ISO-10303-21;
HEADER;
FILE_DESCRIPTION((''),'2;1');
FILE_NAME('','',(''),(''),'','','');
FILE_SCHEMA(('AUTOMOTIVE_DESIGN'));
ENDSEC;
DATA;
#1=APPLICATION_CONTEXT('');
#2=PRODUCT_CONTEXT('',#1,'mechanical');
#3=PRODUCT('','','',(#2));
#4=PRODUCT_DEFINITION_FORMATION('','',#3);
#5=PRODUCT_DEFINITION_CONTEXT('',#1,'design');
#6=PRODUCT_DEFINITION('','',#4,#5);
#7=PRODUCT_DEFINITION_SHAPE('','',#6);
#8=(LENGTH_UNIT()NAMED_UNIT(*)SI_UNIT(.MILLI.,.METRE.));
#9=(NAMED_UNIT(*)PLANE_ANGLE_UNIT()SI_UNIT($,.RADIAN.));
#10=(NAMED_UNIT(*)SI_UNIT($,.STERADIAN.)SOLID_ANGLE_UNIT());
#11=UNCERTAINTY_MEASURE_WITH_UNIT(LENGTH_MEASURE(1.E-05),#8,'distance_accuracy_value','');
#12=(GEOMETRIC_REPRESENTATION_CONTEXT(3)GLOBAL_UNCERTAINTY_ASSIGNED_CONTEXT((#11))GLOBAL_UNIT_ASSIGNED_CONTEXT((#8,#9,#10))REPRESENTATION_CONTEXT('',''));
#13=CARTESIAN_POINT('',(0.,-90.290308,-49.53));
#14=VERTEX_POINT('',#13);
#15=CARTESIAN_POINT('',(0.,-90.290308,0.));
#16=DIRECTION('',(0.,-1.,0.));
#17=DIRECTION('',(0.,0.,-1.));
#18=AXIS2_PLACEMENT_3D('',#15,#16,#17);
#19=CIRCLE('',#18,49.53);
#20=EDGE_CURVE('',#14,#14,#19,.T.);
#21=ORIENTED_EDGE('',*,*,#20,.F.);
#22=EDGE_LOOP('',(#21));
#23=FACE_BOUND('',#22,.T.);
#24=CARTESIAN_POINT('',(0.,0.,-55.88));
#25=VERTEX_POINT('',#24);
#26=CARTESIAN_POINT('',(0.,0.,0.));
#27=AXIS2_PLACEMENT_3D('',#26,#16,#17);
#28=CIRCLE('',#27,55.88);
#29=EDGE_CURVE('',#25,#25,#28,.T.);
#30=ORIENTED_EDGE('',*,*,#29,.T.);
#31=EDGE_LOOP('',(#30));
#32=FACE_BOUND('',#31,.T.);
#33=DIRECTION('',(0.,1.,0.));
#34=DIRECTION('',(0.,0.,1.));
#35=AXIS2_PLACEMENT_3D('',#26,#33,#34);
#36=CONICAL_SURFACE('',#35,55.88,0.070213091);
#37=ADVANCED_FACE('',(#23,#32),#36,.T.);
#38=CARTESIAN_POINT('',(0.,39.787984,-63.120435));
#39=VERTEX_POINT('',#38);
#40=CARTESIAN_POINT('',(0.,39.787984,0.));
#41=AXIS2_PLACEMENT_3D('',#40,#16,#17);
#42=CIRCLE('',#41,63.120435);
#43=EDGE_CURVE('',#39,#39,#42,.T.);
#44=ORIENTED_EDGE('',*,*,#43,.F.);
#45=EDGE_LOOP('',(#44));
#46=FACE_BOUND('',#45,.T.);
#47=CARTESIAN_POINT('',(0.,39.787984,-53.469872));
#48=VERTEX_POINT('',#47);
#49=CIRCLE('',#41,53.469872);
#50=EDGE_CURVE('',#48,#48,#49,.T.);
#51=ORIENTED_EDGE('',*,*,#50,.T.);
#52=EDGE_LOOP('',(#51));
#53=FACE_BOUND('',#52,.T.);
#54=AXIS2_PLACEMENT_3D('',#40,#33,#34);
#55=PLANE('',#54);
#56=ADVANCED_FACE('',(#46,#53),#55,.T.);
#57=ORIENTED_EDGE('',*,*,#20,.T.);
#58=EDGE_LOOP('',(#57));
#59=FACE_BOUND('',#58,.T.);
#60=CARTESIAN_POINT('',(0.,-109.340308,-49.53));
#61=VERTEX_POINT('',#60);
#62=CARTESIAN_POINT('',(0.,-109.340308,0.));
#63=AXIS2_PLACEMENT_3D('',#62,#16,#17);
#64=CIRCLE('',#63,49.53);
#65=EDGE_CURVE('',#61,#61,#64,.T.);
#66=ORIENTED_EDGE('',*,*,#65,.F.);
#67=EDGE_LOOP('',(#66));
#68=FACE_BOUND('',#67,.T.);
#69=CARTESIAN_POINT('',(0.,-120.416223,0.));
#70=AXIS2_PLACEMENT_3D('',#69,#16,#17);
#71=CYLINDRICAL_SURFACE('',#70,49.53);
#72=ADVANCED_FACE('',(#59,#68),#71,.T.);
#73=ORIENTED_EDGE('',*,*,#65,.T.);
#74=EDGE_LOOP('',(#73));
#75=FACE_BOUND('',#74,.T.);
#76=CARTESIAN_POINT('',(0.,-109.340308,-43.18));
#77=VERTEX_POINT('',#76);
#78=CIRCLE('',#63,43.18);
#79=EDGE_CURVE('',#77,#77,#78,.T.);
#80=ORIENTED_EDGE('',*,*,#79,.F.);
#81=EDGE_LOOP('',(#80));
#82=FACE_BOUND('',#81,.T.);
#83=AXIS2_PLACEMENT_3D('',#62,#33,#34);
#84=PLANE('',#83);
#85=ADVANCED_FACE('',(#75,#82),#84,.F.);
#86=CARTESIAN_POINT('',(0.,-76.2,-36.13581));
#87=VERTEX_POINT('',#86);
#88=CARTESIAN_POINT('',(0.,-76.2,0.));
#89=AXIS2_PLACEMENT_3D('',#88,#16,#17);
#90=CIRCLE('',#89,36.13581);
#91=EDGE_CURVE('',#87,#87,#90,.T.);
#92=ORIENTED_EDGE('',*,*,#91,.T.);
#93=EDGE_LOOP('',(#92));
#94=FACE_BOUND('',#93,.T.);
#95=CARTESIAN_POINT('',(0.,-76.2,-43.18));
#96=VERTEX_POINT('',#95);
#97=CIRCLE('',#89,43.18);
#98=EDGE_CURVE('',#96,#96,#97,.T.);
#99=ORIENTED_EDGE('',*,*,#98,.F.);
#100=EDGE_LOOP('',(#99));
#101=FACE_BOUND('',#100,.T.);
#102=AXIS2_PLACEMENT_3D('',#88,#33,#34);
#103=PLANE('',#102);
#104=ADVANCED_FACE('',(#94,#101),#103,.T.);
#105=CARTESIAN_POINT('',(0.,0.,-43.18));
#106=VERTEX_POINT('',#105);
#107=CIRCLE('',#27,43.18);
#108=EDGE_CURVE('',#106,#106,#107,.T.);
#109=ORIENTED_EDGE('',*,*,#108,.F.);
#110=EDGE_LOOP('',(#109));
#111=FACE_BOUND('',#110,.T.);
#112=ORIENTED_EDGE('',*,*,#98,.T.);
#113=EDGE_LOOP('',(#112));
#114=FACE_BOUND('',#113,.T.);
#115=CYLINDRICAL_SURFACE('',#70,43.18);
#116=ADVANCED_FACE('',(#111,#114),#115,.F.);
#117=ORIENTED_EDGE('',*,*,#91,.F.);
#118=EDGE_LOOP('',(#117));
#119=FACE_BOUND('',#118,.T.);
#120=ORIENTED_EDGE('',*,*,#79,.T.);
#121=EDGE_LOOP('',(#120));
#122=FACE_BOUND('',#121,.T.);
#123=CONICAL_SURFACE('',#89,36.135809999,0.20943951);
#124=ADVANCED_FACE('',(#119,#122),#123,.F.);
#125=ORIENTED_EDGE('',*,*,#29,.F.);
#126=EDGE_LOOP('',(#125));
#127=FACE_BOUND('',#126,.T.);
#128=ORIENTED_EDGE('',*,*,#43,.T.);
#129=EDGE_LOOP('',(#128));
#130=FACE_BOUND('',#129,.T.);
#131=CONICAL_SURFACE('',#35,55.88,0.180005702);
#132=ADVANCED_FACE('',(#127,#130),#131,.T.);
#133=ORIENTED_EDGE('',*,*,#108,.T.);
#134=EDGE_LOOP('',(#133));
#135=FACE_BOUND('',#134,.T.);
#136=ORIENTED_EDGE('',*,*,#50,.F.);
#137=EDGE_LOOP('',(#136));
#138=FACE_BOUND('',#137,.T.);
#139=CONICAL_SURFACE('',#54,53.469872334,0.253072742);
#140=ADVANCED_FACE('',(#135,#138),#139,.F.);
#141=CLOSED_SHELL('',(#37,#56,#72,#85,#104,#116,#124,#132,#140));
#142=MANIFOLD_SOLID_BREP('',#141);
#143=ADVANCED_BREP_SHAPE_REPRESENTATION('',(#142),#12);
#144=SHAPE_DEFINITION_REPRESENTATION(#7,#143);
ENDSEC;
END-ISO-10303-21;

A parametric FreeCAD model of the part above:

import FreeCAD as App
import Part
import Sketcher
Q = App.Units.Quantity


def add_polygon(sketch, points):
    """Adds a closed chain of lines whose ends are joined by coincident constraints."""
    first, n = sketch.GeometryCount, len(points)
    for a, b in zip(points, points[1:] + points[:1]):
        sketch.addGeometry(Part.LineSegment(App.Vector(*a, 0), App.Vector(*b, 0)), False)
    for i in range(n):
        sketch.addConstraint(Sketcher.Constraint("Coincident", first + i, 2, first + (i + 1) % n, 1))

doc = App.newDocument("Part")
body = doc.addObject("PartDesign::Body", "Body")

# Sketch on XY plane
sketch1 = body.newObject("Sketcher::SketchObject", "Sketch")
sketch1.AttachmentSupport = (doc.getObject("XY_Plane"), [""])
sketch1.MapMode = "FlatFace"
add_polygon(sketch1, [(43, -76), (36, -76), (43, -109), (50, -109), (50, -90), (56, 0), (63, 40), (53, 40), (43, 0)])  # lines 0-8
sketch1.addConstraint(Sketcher.Constraint("Horizontal", 0))
sketch1.addConstraint(Sketcher.Constraint("Horizontal", 2))
sketch1.addConstraint(Sketcher.Constraint("Vertical", 3))
sketch1.addConstraint(Sketcher.Constraint("Horizontal", 6))
sketch1.addConstraint(Sketcher.Constraint("Vertical", 8))
sketch1.addConstraint(Sketcher.Constraint("PointOnObject", 4, 2, -1))
sketch1.addConstraint(Sketcher.Constraint("PointOnObject", 7, 2, -1))
sketch1.addConstraint(Sketcher.Constraint("Vertical", 1, 2, 7, 2))
sketch1.addConstraint(Sketcher.Constraint("DistanceY", 8, 2, 8, 1, Q("3 in")))
sketch1.addConstraint(Sketcher.Constraint("Angle", 1, Q("-78 deg")))
sketch1.addConstraint(Sketcher.Constraint("DistanceX", 2, 1, 2, 2, Q("0.25 in")))
sketch1.addConstraint(Sketcher.Constraint("DistanceY", 3, 1, 3, 2, Q("0.75 in")))
sketch1.addConstraint(Sketcher.Constraint("DistanceX", -1, 1, 1, 2, Q("1.7 in")))
sketch1.addConstraint(Sketcher.Constraint("DistanceX", -1, 1, 4, 2, Q("2.2 in")))
sketch1.addConstraint(Sketcher.Constraint("Angle", 7, Q("-104.5 deg")))
sketch1.addConstraint(Sketcher.Constraint("DistanceX", 0, 2, 0, 1, 7.04419))
sketch1.addConstraint(Sketcher.Constraint("Distance", 5, 40.441409))
sketch1.addConstraint(Sketcher.Constraint("Distance", 7, 41.097021))
revolution = body.newObject("PartDesign::Revolution", "Revolution")
revolution.Profile = sketch1
revolution.ReferenceAxis = (sketch1, ["V_Axis"])
revolution.Angle = 360

doc.recompute()
